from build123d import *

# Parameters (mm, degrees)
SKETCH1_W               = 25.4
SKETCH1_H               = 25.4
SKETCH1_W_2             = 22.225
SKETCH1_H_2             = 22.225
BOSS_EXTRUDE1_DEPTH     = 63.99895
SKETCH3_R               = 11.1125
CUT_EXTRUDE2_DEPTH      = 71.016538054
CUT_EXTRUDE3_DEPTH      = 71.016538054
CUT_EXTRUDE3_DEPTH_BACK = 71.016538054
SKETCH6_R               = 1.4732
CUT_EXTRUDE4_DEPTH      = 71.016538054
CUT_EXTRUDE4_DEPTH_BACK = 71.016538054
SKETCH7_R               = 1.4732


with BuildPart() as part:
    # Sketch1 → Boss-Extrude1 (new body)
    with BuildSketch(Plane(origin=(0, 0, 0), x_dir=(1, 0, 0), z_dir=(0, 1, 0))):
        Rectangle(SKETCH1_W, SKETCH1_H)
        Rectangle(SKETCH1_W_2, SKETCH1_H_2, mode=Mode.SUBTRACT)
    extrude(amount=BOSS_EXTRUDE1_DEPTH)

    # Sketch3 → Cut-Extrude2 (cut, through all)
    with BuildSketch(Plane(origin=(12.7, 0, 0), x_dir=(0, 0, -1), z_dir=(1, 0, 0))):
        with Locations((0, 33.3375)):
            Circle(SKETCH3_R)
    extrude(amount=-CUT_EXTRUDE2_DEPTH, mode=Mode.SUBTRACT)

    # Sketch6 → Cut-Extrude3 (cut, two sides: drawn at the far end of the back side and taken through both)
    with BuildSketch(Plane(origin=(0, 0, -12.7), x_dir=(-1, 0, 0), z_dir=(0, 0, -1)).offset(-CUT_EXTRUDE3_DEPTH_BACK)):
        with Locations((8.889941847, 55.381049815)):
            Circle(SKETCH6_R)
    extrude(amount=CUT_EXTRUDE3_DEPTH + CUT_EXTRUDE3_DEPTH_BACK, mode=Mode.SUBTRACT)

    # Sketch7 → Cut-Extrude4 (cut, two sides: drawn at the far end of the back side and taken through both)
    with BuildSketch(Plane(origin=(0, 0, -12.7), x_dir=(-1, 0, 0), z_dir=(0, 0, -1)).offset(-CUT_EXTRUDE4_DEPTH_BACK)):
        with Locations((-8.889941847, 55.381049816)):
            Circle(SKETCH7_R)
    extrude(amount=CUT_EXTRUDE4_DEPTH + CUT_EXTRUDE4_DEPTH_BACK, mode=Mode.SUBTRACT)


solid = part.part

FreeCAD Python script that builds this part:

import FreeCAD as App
import Part
import Sketcher
from FreeCAD import Vector
Q = App.Units.Quantity

doc = App.newDocument("Part")
body = doc.addObject("PartDesign::Body", "Body")

# Sketch on XZ plane
sketch1 = doc.addObject("Sketcher::SketchObject", "Sketch")
body.addObject(sketch1)
sketch1.AttachmentSupport = (doc.XZ_Plane, [""])
sketch1.MapMode = "FlatFace"
sketch1.addGeometry(Part.LineSegment(Vector(-13, -13, 0), Vector(-13, 13, 0)), False)
sketch1.addGeometry(Part.LineSegment(Vector(-13, 13, 0), Vector(13, 13, 0)), False)
sketch1.addGeometry(Part.LineSegment(Vector(13, 13, 0), Vector(13, -13, 0)), False)
sketch1.addGeometry(Part.LineSegment(Vector(13, -13, 0), Vector(-13, -13, 0)), False)
sketch1.addGeometry(Part.LineSegment(Vector(11, 11, 0), Vector(-11, 11, 0)), False)
sketch1.addGeometry(Part.LineSegment(Vector(-11, 11, 0), Vector(-11, -11, 0)), False)
sketch1.addGeometry(Part.LineSegment(Vector(-11, -11, 0), Vector(11, -11, 0)), False)
sketch1.addGeometry(Part.LineSegment(Vector(11, -11, 0), Vector(11, 11, 0)), False)
sketch1.addConstraint(Sketcher.Constraint("Coincident", 0, 2, 1, 1))
sketch1.addConstraint(Sketcher.Constraint("Coincident", 1, 2, 2, 1))
sketch1.addConstraint(Sketcher.Constraint("Coincident", 2, 2, 3, 1))
sketch1.addConstraint(Sketcher.Constraint("Coincident", 3, 2, 0, 1))
sketch1.addConstraint(Sketcher.Constraint("Coincident", 4, 2, 5, 1))
sketch1.addConstraint(Sketcher.Constraint("Coincident", 5, 2, 6, 1))
sketch1.addConstraint(Sketcher.Constraint("Coincident", 6, 2, 7, 1))
sketch1.addConstraint(Sketcher.Constraint("Coincident", 7, 2, 4, 1))
sketch1.addConstraint(Sketcher.Constraint("Vertical", 0))
sketch1.addConstraint(Sketcher.Constraint("Horizontal", 1))
sketch1.addConstraint(Sketcher.Constraint("Vertical", 2))
sketch1.addConstraint(Sketcher.Constraint("Horizontal", 3))
sketch1.addConstraint(Sketcher.Constraint("Horizontal", 4))
sketch1.addConstraint(Sketcher.Constraint("Vertical", 5))
sketch1.addConstraint(Sketcher.Constraint("Horizontal", 6))
sketch1.addConstraint(Sketcher.Constraint("Vertical", 7))
sketch1.addConstraint(Sketcher.Constraint("Symmetric", 0, 2, 2, 2, -1, 1))
sketch1.addConstraint(Sketcher.Constraint("Symmetric", 4, 2, 6, 2, -1, 1))
sketch1.addConstraint(Sketcher.Constraint("Equal", 3, 0))
sketch1.addConstraint(Sketcher.Constraint("Equal", 6, 5))
sketch1.addConstraint(Sketcher.Constraint("DistanceX", 1, 1, 1, 2, Q("1 in")))
sketch1.addConstraint(Sketcher.Constraint("DistanceX", 4, 2, 4, 1, Q("0.875 in")))
pad1 = doc.addObject("PartDesign::Pad", "Pad")
body.addObject(pad1)
pad1.Profile = sketch1
pad1.Length = 63.99895
pad1.Reversed = True

# Sketch on YZ plane
sketch2 = doc.addObject("Sketcher::SketchObject", "Sketch001")
body.addObject(sketch2)
sketch2.AttachmentSupport = (doc.YZ_Plane, [""])
sketch2.MapMode = "FlatFace"
sketch2.AttachmentOffset = App.Placement(Vector(0, 0, 0.5 * 25.4), App.Rotation())
sketch2.addGeometry(Part.Circle(Vector(33, 0, 0), Vector(0, 0, 1), 11), False)
sketch2.addConstraint(Sketcher.Constraint("PointOnObject", 0, 3, -1))
sketch2.addConstraint(Sketcher.Constraint("Diameter", 0, Q("0.875 in")))
sketch2.addConstraint(Sketcher.Constraint("DistanceX", -1, 1, 0, 3, Q("1.3125 in")))
pocket1 = doc.addObject("PartDesign::Pocket", "Pocket")
body.addObject(pocket1)
pocket1.Profile = sketch2
pocket1.Type = "ThroughAll"

# Sketch on XY plane
sketch3 = doc.addObject("Sketcher::SketchObject", "Sketch002")
body.addObject(sketch3)
sketch3.AttachmentSupport = (doc.XY_Plane, [""])
sketch3.MapMode = "FlatFace"
sketch3.AttachmentOffset = App.Placement(Vector(0, 0, -0.5 * 25.4), App.Rotation())
sketch3.addGeometry(Part.Circle(Vector(-8.9, 55.4, 0), Vector(0, 0, 1), 1.5), False)
sketch3.addConstraint(Sketcher.Constraint("Diameter", 0, Q("0.116 in")))
sketch3.addConstraint(Sketcher.Constraint("DistanceX", 0, 3, -1, 1, 8.889942))
sketch3.addConstraint(Sketcher.Constraint("DistanceY", -1, 1, 0, 3, 55.38105))
pocket2 = doc.addObject("PartDesign::Pocket", "Pocket001")
body.addObject(pocket2)
pocket2.Profile = sketch3
pocket2.Type = "ThroughAll"
pocket2.Midplane = True

# Sketch on XY plane
sketch4 = doc.addObject("Sketcher::SketchObject", "Sketch003")
body.addObject(sketch4)
sketch4.AttachmentSupport = (doc.XY_Plane, [""])
sketch4.MapMode = "FlatFace"
sketch4.AttachmentOffset = App.Placement(Vector(0, 0, -0.5 * 25.4), App.Rotation())
sketch4.addGeometry(Part.Circle(Vector(8.9, 55.4, 0), Vector(0, 0, 1), 1.5), False)
sketch4.addConstraint(Sketcher.Constraint("Diameter", 0, Q("0.116 in")))
sketch4.addConstraint(Sketcher.Constraint("DistanceX", -1, 1, 0, 3, 8.889942))
sketch4.addConstraint(Sketcher.Constraint("DistanceY", -1, 1, 0, 3, 55.38105))
pocket3 = doc.addObject("PartDesign::Pocket", "Pocket002")
body.addObject(pocket3)
pocket3.Profile = sketch4
pocket3.Type = "ThroughAll"
pocket3.Midplane = True

doc.recompute()
